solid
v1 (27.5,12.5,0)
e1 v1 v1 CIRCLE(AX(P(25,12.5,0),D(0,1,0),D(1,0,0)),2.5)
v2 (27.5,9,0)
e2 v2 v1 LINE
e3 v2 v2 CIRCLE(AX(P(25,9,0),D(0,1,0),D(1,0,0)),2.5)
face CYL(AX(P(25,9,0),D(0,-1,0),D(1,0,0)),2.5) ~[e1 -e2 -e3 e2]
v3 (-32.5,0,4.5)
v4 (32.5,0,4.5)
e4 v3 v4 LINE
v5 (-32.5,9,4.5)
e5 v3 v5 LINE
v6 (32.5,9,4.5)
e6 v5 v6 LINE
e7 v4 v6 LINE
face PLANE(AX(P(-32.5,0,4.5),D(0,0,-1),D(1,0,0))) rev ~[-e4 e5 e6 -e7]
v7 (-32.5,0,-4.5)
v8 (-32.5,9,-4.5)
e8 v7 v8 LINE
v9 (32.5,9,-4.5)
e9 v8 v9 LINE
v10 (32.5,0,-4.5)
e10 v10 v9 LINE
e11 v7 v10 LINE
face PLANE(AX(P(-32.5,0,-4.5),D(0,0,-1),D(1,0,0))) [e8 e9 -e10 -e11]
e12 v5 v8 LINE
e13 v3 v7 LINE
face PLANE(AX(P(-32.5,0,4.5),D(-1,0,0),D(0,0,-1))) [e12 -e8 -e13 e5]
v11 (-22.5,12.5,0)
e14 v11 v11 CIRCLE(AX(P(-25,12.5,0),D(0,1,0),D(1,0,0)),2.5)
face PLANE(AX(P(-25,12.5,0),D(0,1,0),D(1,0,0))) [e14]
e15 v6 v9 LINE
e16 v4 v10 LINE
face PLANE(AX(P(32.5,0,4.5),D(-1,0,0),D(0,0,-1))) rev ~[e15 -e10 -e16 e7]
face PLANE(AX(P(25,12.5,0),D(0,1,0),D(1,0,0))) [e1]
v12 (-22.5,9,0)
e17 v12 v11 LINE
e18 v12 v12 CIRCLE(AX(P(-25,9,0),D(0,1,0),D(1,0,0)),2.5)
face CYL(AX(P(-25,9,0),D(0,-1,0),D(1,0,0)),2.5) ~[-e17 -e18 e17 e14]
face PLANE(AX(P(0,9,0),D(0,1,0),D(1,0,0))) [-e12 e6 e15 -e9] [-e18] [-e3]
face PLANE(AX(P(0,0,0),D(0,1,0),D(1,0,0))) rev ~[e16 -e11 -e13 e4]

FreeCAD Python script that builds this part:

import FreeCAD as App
import Part
import Sketcher
from FreeCAD import Vector

doc = App.newDocument("Part")
body = doc.addObject("PartDesign::Body", "Body")

# Sketch on XZ plane
sketch1 = doc.addObject("Sketcher::SketchObject", "Sketch")
body.addObject(sketch1)
sketch1.AttachmentSupport = (doc.XZ_Plane, [""])
sketch1.MapMode = "FlatFace"
sketch1.addGeometry(Part.LineSegment(Vector(-32, -4, 0), Vector(-32, 4, 0)), False)
sketch1.addGeometry(Part.LineSegment(Vector(-32, 4, 0), Vector(32, 4, 0)), False)
sketch1.addGeometry(Part.LineSegment(Vector(32, 4, 0), Vector(32, -4, 0)), False)
sketch1.addGeometry(Part.LineSegment(Vector(32, -4, 0), Vector(-32, -4, 0)), False)
sketch1.addConstraint(Sketcher.Constraint("Coincident", 0, 2, 1, 1))
sketch1.addConstraint(Sketcher.Constraint("Coincident", 1, 2, 2, 1))
sketch1.addConstraint(Sketcher.Constraint("Coincident", 2, 2, 3, 1))
sketch1.addConstraint(Sketcher.Constraint("Coincident", 3, 2, 0, 1))
sketch1.addConstraint(Sketcher.Constraint("Vertical", 0))
sketch1.addConstraint(Sketcher.Constraint("Horizontal", 1))
sketch1.addConstraint(Sketcher.Constraint("Vertical", 2))
sketch1.addConstraint(Sketcher.Constraint("Horizontal", 3))
sketch1.addConstraint(Sketcher.Constraint("Symmetric", 0, 2, 2, 2, -1, 1))
sketch1.addConstraint(Sketcher.Constraint("DistanceX", 1, 1, 1, 2, 65.0))
sketch1.addConstraint(Sketcher.Constraint("DistanceY", 0, 1, 0, 2, 9.0))
pad1 = doc.addObject("PartDesign::Pad", "Pad")
body.addObject(pad1)
pad1.Profile = sketch1
pad1.Length = 9
pad1.Reversed = True

# Sketch on XZ plane
sketch2 = doc.addObject("Sketcher::SketchObject", "Sketch001")
body.addObject(sketch2)
sketch2.AttachmentSupport = (doc.XZ_Plane, [""])
sketch2.MapMode = "FlatFace"
sketch2.AttachmentOffset = App.Placement(Vector(0, 0, -9), App.Rotation())
sketch2.addGeometry(Part.Circle(Vector(-25, 0, 0), Vector(0, 0, 1), 2.5), False)
sketch2.addGeometry(Part.Circle(Vector(25, 0, 0), Vector(0, 0, 1), 2.5), False)
sketch2.addConstraint(Sketcher.Constraint("Equal", 0, 1))
sketch2.addConstraint(Sketcher.Constraint("Symmetric", 0, 3, 1, 3, -1, 1))
sketch2.addConstraint(Sketcher.Constraint("PointOnObject", 0, 3, -1))
sketch2.addConstraint(Sketcher.Constraint("Diameter", 0, 5.0))
sketch2.addConstraint(Sketcher.Constraint("DistanceX", 0, 3, -1, 1, 25.0))
pad2 = doc.addObject("PartDesign::Pad", "Pad001")
body.addObject(pad2)
pad2.Profile = sketch2
pad2.Length = 3.5
pad2.Reversed = True

doc.recompute()
